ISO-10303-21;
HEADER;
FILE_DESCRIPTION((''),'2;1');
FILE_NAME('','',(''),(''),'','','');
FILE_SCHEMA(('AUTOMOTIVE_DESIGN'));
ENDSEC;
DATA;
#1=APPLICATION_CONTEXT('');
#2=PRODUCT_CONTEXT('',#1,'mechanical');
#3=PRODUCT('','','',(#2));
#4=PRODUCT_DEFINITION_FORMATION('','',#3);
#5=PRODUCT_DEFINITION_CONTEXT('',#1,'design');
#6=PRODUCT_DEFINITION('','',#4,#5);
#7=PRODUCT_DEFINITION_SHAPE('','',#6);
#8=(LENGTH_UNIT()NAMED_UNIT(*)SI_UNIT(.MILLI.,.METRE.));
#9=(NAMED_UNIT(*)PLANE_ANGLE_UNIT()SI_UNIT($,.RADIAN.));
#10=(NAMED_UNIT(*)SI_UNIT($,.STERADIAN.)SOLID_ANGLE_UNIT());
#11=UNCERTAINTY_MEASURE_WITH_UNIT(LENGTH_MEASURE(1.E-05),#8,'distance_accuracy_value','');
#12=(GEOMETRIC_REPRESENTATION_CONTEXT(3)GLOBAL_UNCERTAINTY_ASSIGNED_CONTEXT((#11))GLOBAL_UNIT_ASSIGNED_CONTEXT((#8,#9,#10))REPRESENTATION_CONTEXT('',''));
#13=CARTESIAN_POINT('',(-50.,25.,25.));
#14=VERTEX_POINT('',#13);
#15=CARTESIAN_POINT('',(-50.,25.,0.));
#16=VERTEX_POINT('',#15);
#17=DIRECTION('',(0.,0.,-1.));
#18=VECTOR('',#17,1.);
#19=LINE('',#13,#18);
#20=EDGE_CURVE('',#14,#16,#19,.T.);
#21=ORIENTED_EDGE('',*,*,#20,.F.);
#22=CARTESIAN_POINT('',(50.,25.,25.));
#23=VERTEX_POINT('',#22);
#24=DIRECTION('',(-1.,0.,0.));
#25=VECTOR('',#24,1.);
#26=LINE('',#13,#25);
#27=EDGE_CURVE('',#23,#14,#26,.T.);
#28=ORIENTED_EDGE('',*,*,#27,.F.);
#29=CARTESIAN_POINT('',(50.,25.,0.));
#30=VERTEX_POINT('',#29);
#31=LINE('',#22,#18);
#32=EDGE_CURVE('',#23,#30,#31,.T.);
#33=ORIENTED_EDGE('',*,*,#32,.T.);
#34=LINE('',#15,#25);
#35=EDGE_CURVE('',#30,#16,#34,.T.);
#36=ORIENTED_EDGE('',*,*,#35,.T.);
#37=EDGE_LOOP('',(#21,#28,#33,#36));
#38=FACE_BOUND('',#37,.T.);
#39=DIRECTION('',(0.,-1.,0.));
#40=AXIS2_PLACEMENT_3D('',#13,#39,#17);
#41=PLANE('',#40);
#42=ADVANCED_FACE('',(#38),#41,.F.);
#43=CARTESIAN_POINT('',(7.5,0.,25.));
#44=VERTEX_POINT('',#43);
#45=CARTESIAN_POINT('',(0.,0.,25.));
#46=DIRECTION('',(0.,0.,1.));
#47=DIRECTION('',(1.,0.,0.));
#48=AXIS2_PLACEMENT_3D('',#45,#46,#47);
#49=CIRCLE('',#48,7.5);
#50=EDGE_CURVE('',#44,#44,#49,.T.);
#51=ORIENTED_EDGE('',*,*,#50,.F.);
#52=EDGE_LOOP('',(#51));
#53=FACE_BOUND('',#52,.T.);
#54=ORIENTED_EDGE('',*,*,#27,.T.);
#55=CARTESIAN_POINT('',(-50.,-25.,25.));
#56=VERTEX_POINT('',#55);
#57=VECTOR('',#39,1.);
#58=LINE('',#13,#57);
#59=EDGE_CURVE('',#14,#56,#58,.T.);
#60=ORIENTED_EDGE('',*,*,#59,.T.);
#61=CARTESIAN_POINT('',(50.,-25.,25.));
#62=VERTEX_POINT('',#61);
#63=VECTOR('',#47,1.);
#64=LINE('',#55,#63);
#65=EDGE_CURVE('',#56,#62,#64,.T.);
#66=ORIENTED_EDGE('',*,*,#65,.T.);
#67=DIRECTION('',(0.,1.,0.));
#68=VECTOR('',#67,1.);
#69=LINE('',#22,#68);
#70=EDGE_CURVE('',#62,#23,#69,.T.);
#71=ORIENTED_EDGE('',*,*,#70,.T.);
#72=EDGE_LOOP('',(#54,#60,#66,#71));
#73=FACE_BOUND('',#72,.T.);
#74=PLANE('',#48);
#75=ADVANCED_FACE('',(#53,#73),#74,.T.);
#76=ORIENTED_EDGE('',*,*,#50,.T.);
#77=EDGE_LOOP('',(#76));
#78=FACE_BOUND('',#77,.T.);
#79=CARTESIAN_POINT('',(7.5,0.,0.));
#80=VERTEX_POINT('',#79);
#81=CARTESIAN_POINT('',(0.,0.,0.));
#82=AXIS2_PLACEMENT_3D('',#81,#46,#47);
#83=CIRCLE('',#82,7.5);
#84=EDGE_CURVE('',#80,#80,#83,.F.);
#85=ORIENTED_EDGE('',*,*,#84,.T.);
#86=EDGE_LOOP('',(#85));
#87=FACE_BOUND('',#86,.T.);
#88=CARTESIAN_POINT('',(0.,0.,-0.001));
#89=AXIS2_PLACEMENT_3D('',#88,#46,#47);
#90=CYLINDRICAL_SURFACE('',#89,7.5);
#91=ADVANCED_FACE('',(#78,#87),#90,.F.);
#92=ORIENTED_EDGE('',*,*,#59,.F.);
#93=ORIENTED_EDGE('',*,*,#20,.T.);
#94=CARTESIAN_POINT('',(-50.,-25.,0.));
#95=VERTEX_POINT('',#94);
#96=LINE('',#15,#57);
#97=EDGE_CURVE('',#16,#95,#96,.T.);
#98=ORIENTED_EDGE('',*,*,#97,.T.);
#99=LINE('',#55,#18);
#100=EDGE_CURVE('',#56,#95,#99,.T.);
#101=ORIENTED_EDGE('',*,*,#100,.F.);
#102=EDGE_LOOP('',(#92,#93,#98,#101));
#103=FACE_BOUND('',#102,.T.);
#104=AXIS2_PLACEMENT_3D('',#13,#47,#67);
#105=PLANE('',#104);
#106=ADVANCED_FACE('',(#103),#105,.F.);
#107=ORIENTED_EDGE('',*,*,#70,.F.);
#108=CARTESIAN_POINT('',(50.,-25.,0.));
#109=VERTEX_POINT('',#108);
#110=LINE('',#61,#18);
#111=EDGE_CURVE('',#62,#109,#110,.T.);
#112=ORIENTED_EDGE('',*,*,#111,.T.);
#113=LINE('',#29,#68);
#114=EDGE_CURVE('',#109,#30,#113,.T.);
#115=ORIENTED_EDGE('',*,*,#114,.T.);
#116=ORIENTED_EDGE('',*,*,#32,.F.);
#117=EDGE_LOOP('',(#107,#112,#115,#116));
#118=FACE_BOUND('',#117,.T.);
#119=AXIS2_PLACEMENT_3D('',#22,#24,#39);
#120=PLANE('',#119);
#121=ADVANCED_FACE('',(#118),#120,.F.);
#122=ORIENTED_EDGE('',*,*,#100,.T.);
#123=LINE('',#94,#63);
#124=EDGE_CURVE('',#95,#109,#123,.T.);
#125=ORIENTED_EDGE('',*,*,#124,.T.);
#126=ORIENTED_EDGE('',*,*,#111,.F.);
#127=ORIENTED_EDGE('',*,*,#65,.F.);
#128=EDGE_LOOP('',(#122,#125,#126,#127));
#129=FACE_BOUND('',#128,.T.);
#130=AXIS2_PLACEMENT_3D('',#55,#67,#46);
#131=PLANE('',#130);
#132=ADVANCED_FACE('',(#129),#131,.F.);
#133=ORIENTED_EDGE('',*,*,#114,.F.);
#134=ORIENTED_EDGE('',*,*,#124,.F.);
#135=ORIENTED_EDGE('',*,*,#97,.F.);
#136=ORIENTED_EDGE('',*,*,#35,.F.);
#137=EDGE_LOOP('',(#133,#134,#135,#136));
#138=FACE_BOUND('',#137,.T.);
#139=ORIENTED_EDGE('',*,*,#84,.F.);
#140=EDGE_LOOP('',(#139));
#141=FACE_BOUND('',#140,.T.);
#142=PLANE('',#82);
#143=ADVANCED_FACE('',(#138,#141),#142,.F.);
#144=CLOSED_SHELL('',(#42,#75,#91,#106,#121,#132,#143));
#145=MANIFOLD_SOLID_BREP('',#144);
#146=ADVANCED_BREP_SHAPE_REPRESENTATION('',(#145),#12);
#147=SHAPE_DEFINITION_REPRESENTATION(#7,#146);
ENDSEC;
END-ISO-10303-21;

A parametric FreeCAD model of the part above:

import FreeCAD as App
import Part
import Sketcher
Q = App.Units.Quantity

doc = App.newDocument("Part")
body = doc.addObject("PartDesign::Body", "Body")

# Sketch on XY plane
sketch1 = doc.addObject("Sketcher::SketchObject", "Sketch")
body.addObject(sketch1)
sketch1.AttachmentSupport = (doc.XY_Plane, [""])
sketch1.MapMode = "FlatFace"
sketch1.addGeometry([
    Part.LineSegment(App.Vector(-50, 25, 0), App.Vector(-50, -25, 0)),
    Part.LineSegment(App.Vector(-50, -25, 0), App.Vector(50, -25, 0)),
    Part.LineSegment(App.Vector(50, -25, 0), App.Vector(50, 25, 0)),
    Part.LineSegment(App.Vector(50, 25, 0), App.Vector(-50, 25, 0)),
], False)
sketch1.addConstraint([
    Sketcher.Constraint("Coincident", 0, 2, 1, 1),
    Sketcher.Constraint("Coincident", 1, 2, 2, 1),
    Sketcher.Constraint("Coincident", 2, 2, 3, 1),
    Sketcher.Constraint("Coincident", 3, 2, 0, 1),
    Sketcher.Constraint("Vertical", 0),
    Sketcher.Constraint("Horizontal", 1),
    Sketcher.Constraint("Vertical", 2),
    Sketcher.Constraint("Horizontal", 3),
    Sketcher.Constraint("Symmetric", 0, 2, 2, 2, -1, 1),
    Sketcher.Constraint("DistanceX", 1, 1, 1, 2, Q("100 mm")),
    Sketcher.Constraint("DistanceY", 0, 2, 0, 1, Q("50 mm")),
])
pad1 = doc.addObject("PartDesign::Pad", "Pad")
body.addObject(pad1)
pad1.Profile = sketch1
pad1.Length = 25

# Sketch on XY plane
sketch2 = doc.addObject("Sketcher::SketchObject", "Sketch001")
body.addObject(sketch2)
sketch2.AttachmentSupport = (doc.XY_Plane, [""])
sketch2.MapMode = "FlatFace"
sketch2.AttachmentOffset = App.Placement(App.Vector(0, 0, 25), App.Rotation())
sketch2.addGeometry(Part.Circle(App.Vector(0, 0, 0), App.Vector(0, 0, 1), 8), False)
sketch2.addConstraint([
    Sketcher.Constraint("Coincident", 0, 3, -1, 1),
    Sketcher.Constraint("Diameter", 0, Q("15 mm")),
])
pocket1 = doc.addObject("PartDesign::Pocket", "Pocket")
body.addObject(pocket1)
pocket1.Profile = sketch2
pocket1.Type = "UpToFirst"

doc.recompute()
